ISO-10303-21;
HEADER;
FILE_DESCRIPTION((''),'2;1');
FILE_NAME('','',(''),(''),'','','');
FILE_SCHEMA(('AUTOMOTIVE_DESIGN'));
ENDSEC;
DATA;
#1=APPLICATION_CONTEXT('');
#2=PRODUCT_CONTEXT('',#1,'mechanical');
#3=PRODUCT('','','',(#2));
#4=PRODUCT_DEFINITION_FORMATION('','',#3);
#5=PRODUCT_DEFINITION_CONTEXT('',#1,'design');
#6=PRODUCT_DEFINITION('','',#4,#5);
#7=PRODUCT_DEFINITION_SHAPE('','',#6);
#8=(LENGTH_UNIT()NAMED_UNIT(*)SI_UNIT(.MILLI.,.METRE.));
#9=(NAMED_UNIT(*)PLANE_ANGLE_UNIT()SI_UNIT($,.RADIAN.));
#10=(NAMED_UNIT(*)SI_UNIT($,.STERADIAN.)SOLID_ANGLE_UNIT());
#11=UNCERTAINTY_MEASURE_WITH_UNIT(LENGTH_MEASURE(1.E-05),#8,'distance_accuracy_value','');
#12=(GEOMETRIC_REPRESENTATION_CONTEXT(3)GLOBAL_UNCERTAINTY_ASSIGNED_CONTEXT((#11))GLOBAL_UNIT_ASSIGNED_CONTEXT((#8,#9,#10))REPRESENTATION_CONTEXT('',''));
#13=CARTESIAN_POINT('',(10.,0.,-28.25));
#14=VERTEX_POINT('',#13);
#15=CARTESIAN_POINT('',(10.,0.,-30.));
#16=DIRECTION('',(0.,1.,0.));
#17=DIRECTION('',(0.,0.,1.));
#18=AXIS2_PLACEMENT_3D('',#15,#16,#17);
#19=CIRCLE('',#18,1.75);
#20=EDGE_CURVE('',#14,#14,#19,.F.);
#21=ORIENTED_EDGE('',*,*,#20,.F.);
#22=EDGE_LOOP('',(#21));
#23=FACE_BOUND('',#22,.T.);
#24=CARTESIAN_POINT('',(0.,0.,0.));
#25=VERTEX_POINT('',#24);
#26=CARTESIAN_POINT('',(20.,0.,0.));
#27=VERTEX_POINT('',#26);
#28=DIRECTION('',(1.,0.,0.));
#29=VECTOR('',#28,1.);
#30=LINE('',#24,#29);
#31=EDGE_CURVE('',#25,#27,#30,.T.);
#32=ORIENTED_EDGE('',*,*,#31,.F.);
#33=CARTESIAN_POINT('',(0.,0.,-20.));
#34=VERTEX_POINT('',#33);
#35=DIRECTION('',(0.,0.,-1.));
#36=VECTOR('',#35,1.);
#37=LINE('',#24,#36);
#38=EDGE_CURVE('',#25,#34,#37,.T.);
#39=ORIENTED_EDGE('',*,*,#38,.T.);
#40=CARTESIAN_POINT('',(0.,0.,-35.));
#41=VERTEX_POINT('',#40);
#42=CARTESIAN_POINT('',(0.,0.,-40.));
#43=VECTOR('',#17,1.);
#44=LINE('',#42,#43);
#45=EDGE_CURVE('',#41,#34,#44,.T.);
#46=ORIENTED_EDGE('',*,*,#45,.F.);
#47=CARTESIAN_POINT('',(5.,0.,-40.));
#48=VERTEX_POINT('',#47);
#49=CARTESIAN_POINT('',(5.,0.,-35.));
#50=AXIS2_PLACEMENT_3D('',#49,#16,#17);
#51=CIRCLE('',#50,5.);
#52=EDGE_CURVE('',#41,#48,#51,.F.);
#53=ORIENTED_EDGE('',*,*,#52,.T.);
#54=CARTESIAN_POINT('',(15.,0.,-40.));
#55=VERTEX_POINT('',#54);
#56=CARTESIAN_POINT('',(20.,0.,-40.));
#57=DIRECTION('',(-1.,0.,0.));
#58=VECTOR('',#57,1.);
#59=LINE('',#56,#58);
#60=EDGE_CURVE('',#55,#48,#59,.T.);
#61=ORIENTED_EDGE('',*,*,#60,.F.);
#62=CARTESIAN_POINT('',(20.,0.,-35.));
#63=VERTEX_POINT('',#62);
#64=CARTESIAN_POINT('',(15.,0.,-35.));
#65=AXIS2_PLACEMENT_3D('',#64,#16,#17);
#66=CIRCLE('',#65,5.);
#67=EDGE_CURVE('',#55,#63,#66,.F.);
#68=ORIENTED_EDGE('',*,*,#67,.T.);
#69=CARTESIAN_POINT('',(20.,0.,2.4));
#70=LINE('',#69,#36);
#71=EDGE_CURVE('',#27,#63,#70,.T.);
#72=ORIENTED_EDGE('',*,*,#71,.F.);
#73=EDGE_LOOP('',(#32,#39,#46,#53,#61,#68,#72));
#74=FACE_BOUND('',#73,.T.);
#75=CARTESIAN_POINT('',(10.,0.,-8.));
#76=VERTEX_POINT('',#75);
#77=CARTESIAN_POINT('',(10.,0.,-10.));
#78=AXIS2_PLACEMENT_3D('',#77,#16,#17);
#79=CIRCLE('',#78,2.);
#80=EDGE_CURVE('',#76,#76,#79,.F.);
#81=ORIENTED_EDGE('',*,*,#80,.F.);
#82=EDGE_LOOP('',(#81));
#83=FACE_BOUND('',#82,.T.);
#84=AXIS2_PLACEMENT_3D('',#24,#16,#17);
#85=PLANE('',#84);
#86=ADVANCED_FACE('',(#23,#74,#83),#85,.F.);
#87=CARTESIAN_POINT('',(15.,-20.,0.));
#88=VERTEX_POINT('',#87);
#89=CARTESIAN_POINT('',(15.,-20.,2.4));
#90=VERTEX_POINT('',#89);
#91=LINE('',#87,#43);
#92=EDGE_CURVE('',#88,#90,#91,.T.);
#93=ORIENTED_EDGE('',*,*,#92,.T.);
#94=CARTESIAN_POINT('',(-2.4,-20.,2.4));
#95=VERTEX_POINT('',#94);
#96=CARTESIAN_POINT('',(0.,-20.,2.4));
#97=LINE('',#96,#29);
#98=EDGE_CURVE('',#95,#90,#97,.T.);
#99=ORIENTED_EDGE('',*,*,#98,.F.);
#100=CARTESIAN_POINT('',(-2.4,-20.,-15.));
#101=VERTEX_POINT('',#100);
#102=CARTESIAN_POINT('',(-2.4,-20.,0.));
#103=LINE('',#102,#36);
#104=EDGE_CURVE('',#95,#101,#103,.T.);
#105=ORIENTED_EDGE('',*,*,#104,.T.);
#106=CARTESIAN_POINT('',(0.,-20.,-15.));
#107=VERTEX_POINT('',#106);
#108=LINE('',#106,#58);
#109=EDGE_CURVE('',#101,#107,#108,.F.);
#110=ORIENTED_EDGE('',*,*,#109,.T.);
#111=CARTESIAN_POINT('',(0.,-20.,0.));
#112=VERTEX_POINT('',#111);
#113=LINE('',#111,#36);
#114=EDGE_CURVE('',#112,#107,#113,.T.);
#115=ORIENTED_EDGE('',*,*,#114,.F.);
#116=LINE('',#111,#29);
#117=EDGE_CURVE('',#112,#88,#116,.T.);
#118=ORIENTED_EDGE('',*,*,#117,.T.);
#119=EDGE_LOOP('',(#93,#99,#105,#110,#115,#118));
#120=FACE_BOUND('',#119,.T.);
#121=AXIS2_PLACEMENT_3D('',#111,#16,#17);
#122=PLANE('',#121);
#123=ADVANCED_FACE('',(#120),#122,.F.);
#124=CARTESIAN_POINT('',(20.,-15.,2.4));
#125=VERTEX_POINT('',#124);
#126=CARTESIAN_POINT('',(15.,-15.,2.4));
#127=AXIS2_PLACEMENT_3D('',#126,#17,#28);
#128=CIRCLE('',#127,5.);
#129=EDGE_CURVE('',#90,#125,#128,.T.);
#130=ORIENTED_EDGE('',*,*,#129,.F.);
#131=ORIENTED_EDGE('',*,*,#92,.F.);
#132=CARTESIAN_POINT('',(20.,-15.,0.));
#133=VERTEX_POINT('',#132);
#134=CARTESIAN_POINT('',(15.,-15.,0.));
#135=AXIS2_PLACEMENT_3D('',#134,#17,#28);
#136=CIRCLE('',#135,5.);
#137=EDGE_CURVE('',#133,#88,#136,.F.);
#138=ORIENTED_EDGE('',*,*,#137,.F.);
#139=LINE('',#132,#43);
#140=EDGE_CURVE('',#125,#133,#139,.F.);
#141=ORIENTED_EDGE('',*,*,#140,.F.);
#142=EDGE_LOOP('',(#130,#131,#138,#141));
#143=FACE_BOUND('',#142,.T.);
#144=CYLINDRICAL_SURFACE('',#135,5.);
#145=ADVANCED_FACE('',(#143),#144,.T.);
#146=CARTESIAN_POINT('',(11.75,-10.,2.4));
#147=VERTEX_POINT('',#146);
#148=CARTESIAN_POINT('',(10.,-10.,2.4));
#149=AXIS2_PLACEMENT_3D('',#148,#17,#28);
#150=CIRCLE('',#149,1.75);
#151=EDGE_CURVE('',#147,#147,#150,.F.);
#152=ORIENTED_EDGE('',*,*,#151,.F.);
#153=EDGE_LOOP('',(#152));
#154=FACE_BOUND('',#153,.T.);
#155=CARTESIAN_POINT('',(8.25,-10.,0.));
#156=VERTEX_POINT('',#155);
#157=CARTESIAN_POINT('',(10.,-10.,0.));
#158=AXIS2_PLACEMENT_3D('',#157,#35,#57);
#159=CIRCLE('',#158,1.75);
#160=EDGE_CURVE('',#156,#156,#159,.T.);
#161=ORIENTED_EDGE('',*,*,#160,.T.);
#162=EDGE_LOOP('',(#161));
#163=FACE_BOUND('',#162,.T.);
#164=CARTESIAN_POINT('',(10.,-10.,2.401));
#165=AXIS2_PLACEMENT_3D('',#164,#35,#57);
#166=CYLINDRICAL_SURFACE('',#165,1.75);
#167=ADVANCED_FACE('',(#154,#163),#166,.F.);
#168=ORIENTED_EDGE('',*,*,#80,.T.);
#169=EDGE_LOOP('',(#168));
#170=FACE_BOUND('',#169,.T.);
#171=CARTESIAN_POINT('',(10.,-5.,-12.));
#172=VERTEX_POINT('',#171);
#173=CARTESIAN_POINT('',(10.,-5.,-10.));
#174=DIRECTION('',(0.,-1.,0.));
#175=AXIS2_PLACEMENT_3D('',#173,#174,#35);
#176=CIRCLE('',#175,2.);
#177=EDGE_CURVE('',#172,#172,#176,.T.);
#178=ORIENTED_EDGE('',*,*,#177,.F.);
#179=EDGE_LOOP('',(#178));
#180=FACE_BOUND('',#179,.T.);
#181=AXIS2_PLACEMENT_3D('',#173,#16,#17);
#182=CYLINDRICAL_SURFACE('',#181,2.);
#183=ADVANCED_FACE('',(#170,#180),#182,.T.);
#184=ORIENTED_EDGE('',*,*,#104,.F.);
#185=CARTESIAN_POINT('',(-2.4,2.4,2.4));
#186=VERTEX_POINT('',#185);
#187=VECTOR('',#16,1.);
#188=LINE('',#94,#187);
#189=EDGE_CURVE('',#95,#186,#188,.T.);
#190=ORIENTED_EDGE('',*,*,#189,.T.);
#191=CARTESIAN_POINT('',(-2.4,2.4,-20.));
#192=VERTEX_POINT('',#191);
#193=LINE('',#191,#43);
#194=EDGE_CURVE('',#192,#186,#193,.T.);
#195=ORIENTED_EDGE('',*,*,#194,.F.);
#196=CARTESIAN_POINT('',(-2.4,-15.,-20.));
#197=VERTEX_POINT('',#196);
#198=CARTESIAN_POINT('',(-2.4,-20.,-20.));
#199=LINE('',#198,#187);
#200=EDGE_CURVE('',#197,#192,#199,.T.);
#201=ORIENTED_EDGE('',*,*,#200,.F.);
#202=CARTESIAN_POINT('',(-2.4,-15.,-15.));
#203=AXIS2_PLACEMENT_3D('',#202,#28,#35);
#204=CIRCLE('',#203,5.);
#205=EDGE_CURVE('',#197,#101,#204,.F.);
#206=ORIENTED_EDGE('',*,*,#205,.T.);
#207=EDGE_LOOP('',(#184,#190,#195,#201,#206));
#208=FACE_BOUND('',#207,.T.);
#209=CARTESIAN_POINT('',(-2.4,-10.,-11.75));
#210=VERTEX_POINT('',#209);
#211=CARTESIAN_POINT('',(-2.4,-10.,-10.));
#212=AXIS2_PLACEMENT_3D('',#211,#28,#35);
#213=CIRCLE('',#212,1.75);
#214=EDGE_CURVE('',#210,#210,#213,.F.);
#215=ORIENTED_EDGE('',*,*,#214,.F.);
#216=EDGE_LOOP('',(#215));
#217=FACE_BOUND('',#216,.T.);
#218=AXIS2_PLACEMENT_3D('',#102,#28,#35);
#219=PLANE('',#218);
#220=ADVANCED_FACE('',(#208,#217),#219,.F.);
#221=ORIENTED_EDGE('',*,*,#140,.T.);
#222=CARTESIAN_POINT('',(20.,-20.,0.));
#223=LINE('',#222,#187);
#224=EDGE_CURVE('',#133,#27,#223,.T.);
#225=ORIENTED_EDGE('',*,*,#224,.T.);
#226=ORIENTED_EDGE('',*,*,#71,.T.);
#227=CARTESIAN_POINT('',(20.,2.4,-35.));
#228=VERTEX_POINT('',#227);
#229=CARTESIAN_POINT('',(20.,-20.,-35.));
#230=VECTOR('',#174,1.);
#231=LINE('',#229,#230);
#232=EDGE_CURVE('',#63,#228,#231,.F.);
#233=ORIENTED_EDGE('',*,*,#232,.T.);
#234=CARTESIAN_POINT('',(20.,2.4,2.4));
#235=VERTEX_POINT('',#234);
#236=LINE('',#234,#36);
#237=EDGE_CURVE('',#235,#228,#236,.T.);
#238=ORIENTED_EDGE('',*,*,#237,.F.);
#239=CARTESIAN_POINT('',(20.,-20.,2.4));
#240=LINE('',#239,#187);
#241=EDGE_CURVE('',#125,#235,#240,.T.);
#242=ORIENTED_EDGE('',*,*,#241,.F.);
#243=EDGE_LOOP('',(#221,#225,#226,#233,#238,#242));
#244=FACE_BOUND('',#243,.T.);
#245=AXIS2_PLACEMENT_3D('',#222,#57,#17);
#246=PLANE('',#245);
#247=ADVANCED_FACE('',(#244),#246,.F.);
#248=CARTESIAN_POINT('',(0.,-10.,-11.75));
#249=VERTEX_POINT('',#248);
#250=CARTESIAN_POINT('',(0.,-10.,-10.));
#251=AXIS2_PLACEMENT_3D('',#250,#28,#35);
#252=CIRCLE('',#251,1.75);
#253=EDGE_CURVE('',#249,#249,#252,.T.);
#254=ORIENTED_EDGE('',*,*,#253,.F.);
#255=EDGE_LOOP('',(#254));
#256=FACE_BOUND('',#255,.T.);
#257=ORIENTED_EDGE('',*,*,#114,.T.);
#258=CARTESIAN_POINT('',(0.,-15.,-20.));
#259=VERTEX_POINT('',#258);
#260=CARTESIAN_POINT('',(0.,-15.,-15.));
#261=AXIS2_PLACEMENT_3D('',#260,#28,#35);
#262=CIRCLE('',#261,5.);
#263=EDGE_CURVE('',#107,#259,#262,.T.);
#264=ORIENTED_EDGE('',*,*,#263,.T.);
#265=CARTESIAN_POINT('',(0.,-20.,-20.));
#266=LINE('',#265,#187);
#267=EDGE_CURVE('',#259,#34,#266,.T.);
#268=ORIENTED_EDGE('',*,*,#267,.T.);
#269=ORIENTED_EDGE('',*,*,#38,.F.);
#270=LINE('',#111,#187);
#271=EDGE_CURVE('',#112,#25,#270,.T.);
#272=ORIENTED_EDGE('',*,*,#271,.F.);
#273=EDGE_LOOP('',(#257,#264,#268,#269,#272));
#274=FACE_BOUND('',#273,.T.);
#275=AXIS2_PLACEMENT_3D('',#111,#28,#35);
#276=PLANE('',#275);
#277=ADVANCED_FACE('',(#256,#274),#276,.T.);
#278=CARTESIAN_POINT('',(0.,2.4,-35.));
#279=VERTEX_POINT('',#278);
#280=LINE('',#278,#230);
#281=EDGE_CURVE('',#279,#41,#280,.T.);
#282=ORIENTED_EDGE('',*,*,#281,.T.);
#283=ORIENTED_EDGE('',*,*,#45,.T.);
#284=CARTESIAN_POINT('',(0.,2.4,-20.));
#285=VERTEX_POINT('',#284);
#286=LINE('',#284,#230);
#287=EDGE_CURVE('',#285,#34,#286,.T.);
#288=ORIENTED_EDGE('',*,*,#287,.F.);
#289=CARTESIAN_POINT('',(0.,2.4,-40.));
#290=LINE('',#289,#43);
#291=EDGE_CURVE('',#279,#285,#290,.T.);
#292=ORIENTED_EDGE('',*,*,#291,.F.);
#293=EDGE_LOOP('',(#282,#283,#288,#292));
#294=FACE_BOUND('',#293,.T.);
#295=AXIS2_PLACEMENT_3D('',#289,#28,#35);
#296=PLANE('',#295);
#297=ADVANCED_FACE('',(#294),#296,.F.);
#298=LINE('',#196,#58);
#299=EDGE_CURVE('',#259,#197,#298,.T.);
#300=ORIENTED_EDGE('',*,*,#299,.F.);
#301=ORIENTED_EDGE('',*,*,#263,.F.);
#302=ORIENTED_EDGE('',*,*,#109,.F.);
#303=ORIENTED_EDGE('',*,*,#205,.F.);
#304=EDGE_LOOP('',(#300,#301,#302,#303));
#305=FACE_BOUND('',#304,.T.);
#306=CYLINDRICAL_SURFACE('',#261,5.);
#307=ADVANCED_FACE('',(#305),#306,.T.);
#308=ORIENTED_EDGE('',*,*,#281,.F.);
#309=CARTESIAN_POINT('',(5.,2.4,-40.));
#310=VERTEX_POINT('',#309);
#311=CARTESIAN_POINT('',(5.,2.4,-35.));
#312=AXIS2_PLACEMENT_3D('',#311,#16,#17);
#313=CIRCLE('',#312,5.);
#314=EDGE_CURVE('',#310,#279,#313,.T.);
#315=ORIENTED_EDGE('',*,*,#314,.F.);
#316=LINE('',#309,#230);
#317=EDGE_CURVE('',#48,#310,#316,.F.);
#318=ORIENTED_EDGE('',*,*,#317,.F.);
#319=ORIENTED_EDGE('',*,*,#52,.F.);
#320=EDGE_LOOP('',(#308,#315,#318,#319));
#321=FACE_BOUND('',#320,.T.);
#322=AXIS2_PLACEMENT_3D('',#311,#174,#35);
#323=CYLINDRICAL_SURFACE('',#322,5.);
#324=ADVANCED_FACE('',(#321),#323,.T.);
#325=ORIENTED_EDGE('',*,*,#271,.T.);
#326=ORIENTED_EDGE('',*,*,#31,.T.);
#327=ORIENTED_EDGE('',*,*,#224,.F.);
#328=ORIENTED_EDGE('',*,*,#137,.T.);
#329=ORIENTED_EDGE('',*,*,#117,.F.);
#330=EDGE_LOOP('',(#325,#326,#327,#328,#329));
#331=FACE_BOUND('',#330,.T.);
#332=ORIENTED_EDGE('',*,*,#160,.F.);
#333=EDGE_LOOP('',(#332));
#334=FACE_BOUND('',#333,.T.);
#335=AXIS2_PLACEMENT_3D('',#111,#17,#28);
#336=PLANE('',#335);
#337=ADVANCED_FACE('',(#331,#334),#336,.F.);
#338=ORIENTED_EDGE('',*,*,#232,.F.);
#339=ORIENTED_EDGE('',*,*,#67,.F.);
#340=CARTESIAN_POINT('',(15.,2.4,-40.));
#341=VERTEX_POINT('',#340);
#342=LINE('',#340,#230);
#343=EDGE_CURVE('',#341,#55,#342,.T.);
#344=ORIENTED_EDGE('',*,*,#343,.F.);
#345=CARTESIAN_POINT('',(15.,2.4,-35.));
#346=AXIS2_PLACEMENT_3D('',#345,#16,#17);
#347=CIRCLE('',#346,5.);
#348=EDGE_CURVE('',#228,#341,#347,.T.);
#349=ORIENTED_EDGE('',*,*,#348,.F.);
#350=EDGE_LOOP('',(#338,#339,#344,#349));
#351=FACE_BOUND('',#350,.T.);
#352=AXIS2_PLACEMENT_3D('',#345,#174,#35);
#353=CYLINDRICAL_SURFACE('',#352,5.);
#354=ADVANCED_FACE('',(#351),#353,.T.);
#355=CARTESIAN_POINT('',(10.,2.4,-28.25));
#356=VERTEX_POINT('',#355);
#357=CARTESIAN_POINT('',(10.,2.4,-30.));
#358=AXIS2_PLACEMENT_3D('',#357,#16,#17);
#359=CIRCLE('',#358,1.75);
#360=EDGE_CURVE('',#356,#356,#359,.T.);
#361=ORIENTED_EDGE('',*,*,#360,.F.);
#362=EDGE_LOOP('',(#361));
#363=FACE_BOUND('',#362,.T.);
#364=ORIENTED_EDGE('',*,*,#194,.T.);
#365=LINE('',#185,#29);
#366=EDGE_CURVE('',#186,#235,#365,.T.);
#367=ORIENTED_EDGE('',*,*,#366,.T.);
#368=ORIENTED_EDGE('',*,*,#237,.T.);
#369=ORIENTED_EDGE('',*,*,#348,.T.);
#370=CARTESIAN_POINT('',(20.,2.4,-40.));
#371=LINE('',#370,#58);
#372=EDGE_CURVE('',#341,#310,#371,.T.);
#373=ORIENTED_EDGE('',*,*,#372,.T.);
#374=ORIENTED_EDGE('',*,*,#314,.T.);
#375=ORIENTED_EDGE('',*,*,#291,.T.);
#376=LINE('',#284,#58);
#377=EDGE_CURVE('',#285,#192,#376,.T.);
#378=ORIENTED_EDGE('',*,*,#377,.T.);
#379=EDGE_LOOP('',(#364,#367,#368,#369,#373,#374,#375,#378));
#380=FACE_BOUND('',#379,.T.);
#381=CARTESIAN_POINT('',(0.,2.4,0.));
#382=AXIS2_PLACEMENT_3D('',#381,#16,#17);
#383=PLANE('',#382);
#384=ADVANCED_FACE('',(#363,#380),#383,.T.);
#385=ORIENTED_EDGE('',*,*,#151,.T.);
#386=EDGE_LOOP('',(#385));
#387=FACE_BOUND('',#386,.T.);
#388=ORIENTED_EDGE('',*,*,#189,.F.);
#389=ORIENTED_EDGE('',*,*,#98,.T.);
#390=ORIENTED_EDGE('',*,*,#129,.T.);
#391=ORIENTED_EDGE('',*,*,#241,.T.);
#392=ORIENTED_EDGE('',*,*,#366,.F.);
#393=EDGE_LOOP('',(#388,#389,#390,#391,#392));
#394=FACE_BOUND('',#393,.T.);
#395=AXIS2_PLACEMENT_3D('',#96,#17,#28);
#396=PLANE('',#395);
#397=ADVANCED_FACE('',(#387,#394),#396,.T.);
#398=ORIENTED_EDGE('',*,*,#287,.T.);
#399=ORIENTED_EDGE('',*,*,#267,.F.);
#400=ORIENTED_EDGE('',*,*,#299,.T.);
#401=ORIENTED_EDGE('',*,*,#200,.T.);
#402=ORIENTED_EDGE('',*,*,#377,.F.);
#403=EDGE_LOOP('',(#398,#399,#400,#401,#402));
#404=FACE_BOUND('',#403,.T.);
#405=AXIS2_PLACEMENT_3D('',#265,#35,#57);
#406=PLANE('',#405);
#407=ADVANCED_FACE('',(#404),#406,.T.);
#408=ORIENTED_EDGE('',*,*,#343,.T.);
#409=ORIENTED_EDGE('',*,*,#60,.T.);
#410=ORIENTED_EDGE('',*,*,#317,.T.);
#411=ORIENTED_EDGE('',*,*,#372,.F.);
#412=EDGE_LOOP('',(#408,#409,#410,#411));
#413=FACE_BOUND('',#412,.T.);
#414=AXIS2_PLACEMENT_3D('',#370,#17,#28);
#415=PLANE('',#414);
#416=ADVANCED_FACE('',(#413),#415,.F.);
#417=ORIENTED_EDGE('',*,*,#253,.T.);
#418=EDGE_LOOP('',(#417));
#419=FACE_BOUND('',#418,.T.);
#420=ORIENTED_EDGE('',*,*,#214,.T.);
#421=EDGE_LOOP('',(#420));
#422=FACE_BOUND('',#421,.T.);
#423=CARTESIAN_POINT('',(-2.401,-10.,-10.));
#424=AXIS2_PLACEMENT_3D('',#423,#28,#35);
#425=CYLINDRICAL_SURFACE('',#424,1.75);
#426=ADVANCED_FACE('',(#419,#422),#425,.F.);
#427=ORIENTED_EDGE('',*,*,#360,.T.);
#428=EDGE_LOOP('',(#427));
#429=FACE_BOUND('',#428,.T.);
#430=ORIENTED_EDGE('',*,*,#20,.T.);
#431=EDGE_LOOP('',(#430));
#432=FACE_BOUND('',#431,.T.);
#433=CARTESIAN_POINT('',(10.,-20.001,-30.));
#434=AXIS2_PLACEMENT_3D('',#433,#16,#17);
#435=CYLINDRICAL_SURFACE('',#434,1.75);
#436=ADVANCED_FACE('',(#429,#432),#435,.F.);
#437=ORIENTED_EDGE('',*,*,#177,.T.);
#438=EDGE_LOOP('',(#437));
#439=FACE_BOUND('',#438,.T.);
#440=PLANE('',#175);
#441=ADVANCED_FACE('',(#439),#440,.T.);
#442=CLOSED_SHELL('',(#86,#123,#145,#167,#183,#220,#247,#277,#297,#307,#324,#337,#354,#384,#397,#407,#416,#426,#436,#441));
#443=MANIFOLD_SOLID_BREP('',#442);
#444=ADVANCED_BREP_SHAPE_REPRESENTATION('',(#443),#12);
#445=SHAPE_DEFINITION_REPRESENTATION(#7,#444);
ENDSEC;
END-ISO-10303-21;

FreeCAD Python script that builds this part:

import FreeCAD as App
import Part
import Sketcher

V = App.Vector
Q = App.Units.Quantity


def edges_at(feature, points):
    """Names of the edges that pass closest to the given points."""
    edges = feature.Shape.Edges
    near = lambda p: min(range(len(edges)), key=lambda i: edges[i].distToShape(Part.Vertex(*p))[0])
    return sorted({f"Edge{near(p) + 1}" for p in points})


def add_polygon(sketch, points):
    """Adds a closed chain of lines whose ends are joined by coincident constraints."""
    first, n = sketch.GeometryCount, len(points)
    for a, b in zip(points, points[1:] + points[:1]):
        sketch.addGeometry(Part.LineSegment(App.Vector(*a, 0), App.Vector(*b, 0)), False)
    for i in range(n):
        sketch.addConstraint(Sketcher.Constraint("Coincident", first + i, 2, first + (i + 1) % n, 1))

doc = App.newDocument("Part")
body = doc.addObject("PartDesign::Body", "Body")

sketch1 = doc.addObject("Sketcher::SketchObject", "Sketch")
body.addObject(sketch1)
sketch1.AttachmentSupport = (doc.XZ_Plane, [""])
sketch1.MapMode = "FlatFace"
add_polygon(sketch1, [(-2.4, -20), (-2.4, 2.4), (20, 2.4), (20, 0), (0, 0), (0, -20)])
sketch1.addConstraint(Sketcher.Constraint("Vertical", 0))
sketch1.addConstraint(Sketcher.Constraint("Horizontal", 1))
sketch1.addConstraint(Sketcher.Constraint("Vertical", 2))
sketch1.addConstraint(Sketcher.Constraint("Horizontal", 3))
sketch1.addConstraint(Sketcher.Constraint("Vertical", 4))
sketch1.addConstraint(Sketcher.Constraint("Horizontal", 5))
sketch1.addConstraint(Sketcher.Constraint("Coincident", 3, 2, -1, 1))
sketch1.addConstraint(Sketcher.Constraint("Equal", 1, 0))
sketch1.addConstraint(Sketcher.Constraint("Equal", 5, 2))
sketch1.addConstraint(Sketcher.Constraint("DistanceX", 3, 2, 3, 1, Q("20 mm")))
sketch1.addConstraint(Sketcher.Constraint("DistanceX", 1, 1, 1, 2, Q("22.4 mm")))
pad1 = doc.addObject("PartDesign::Pad", "Pad")
body.addObject(pad1)
pad1.Profile = sketch1
pad1.Length = 20

sketch2 = doc.addObject("Sketcher::SketchObject", "Sketch001")
body.addObject(sketch2)
sketch2.AttachmentSupport = (doc.XZ_Plane, [""])
sketch2.MapMode = "FlatFace"
add_polygon(sketch2, [(20, 2.4), (20, -40), (0, -40), (0, -20), (-2.4, -20), (-2.4, 2.4)])
sketch2.addConstraint(Sketcher.Constraint("Vertical", 0))
sketch2.addConstraint(Sketcher.Constraint("Horizontal", 1))
sketch2.addConstraint(Sketcher.Constraint("Vertical", 2))
sketch2.addConstraint(Sketcher.Constraint("Horizontal", 3))
sketch2.addConstraint(Sketcher.Constraint("Vertical", 4))
sketch2.addConstraint(Sketcher.Constraint("Horizontal", 5))
sketch2.addConstraint(Sketcher.Constraint("PointOnObject", 1, 2, -2))
sketch2.addConstraint(Sketcher.Constraint("Equal", 1, 2))
sketch2.addConstraint(Sketcher.Constraint("Equal", 5, 4))
sketch2.addConstraint(Sketcher.Constraint("DistanceX", 1, 2, 1, 1, Q("20 mm")))
sketch2.addConstraint(Sketcher.Constraint("DistanceX", 3, 2, 3, 1, Q("2.4 mm")))
sketch2.addConstraint(Sketcher.Constraint("DistanceY", 0, 2, -1, 1, Q("40 mm")))
pad2 = doc.addObject("PartDesign::Pad", "Pad001")
body.addObject(pad2)
pad2.Profile = sketch2
pad2.Length = 2.4
pad2.Reversed = True

sketch3 = doc.addObject("Sketcher::SketchObject", "Sketch002")
body.addObject(sketch3)
sketch3.AttachmentSupport = (doc.YZ_Plane, [""])
sketch3.MapMode = "FlatFace"
sketch3.addGeometry(Part.Circle(V(-10, -10, 0), V(0, 0, 1), 1.8), False)
sketch3.addConstraint(Sketcher.Constraint("Diameter", 0, Q("3.5 mm")))
sketch3.addConstraint(Sketcher.Constraint("DistanceX", 0, 3, -1, 1, Q("10 mm")))
sketch3.addConstraint(Sketcher.Constraint("DistanceY", 0, 3, -1, 1, Q("10 mm")))
pocket1 = doc.addObject("PartDesign::Pocket", "Pocket")
body.addObject(pocket1)
pocket1.Profile = sketch3
pocket1.Type = "UpToFirst"

sketch4 = doc.addObject("Sketcher::SketchObject", "Sketch003")
body.addObject(sketch4)
sketch4.AttachmentSupport = (doc.XY_Plane, [""])
sketch4.MapMode = "FlatFace"
sketch4.addGeometry(Part.Circle(V(10, -10, 0), V(0, 0, 1), 1.8), False)
sketch4.addConstraint(Sketcher.Constraint("Diameter", 0, Q("3.5 mm")))
sketch4.addConstraint(Sketcher.Constraint("DistanceX", -1, 1, 0, 3, Q("10 mm")))
sketch4.addConstraint(Sketcher.Constraint("DistanceY", 0, 3, -1, 1, Q("10 mm")))
pocket2 = doc.addObject("PartDesign::Pocket", "Pocket001")
body.addObject(pocket2)
pocket2.Profile = sketch4
pocket2.Type = "UpToFirst"
pocket2.Reversed = True

sketch5 = doc.addObject("Sketcher::SketchObject", "Sketch004")
body.addObject(sketch5)
sketch5.AttachmentSupport = (doc.XZ_Plane, [""])
sketch5.MapMode = "FlatFace"
sketch5.AttachmentOffset = App.Placement(V(0, 0, -2.4), App.Rotation())
sketch5.addGeometry(Part.Circle(V(10, -30, 0), V(0, 0, 1), 1.8), False)
sketch5.addConstraint(Sketcher.Constraint("Diameter", 0, Q("3.5 mm")))
sketch5.addConstraint(Sketcher.Constraint("DistanceX", -1, 1, 0, 3, Q("10 mm")))
sketch5.addConstraint(Sketcher.Constraint("DistanceY", 0, 3, -1, 1, Q("30 mm")))
pocket3 = doc.addObject("PartDesign::Pocket", "Pocket002")
body.addObject(pocket3)
pocket3.Profile = sketch5
pocket3.Type = "UpToFirst"
pocket3.Reversed = True

sketch6 = doc.addObject("Sketcher::SketchObject", "Sketch005")
body.addObject(sketch6)
sketch6.AttachmentSupport = (doc.XZ_Plane, [""])
sketch6.MapMode = "FlatFace"
sketch6.addGeometry(Part.Circle(V(10, -10, 0), V(0, 0, 1), 2), False)
sketch6.addConstraint(Sketcher.Constraint("Diameter", 0, Q("4 mm")))
sketch6.addConstraint(Sketcher.Constraint("DistanceX", -1, 1, 0, 3, Q("10 mm")))
sketch6.addConstraint(Sketcher.Constraint("DistanceY", 0, 3, -1, 1, Q("10 mm")))
pad3 = doc.addObject("PartDesign::Pad", "Pad002")
body.addObject(pad3)
pad3.Profile = sketch6
pad3.Length = 5
doc.recompute()

fillet = doc.addObject("PartDesign::Fillet", "Fillet")
body.addObject(fillet)
fillet.Base = (pad3, edges_at(pad3, [
    (20, -20, 1.2),
    (20, 1.2, -40),
    (0, 1.2, -40),
    (-1.2, -20, -20),
]))
fillet.Radius = 5

doc.recompute()
